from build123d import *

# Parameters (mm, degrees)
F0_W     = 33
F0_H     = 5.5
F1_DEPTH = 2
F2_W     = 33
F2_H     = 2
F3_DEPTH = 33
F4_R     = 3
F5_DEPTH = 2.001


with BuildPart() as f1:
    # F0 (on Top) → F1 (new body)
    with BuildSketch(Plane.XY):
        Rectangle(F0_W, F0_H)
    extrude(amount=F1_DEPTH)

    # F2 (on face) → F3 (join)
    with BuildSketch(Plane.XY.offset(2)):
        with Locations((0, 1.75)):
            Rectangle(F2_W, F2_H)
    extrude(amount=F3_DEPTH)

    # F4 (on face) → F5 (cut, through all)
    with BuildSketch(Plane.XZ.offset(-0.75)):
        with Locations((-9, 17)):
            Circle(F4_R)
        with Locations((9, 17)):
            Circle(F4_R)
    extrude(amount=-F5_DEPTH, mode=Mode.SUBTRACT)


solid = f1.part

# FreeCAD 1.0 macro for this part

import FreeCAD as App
import Part
import Sketcher

V = App.Vector


def add_polygon(sketch, points):
    """Adds a closed chain of lines whose ends are joined by coincident constraints."""
    first, n = sketch.GeometryCount, len(points)
    for a, b in zip(points, points[1:] + points[:1]):
        sketch.addGeometry(Part.LineSegment(App.Vector(*a, 0), App.Vector(*b, 0)), False)
    for i in range(n):
        sketch.addConstraint(Sketcher.Constraint("Coincident", first + i, 2, first + (i + 1) % n, 1))

doc = App.newDocument("Part")
body = doc.addObject("PartDesign::Body", "Body")

sketch1 = doc.addObject("Sketcher::SketchObject", "Sketch")
body.addObject(sketch1)
sketch1.AttachmentSupport = (doc.XY_Plane, [""])
sketch1.MapMode = "FlatFace"
add_polygon(sketch1, [(-16, 3), (-16, -3), (16, -3), (16, 3)])
sketch1.addConstraint([
    Sketcher.Constraint("Vertical", 0),
    Sketcher.Constraint("Horizontal", 1),
    Sketcher.Constraint("Vertical", 2),
    Sketcher.Constraint("Horizontal", 3),
    Sketcher.Constraint("Symmetric", 0, 2, 2, 2, -1, 1),
    Sketcher.Constraint("DistanceX", 1, 1, 1, 2, 33.0),
    Sketcher.Constraint("DistanceY", 0, 2, 0, 1, 5.5),
])
pad1 = doc.addObject("PartDesign::Pad", "Pad")
body.addObject(pad1)
pad1.Profile = sketch1
pad1.Length = 2

sketch2 = doc.addObject("Sketcher::SketchObject", "Sketch001")
body.addObject(sketch2)
sketch2.AttachmentSupport = (doc.XY_Plane, [""])
sketch2.MapMode = "FlatFace"
sketch2.AttachmentOffset = App.Placement(V(0, 0, 2), App.Rotation())
add_polygon(sketch2, [(-16.5, 2.8), (-16.5, 0.8), (16.5, 0.8), (16.5, 2.8)])
sketch2.addConstraint([
    Sketcher.Constraint("Vertical", 0),
    Sketcher.Constraint("Horizontal", 1),
    Sketcher.Constraint("Vertical", 2),
    Sketcher.Constraint("Horizontal", 3),
    Sketcher.Constraint("DistanceX", 1, 1, 1, 2, 33.0),
    Sketcher.Constraint("DistanceY", 0, 2, 0, 1, 2.0),
    Sketcher.Constraint("DistanceX", 0, 2, -1, 1, 16.5),
    Sketcher.Constraint("DistanceY", -1, 1, 0, 2, 0.75),
])
pad2 = doc.addObject("PartDesign::Pad", "Pad001")
body.addObject(pad2)
pad2.Profile = sketch2
pad2.Length = 33

sketch3 = doc.addObject("Sketcher::SketchObject", "Sketch002")
body.addObject(sketch3)
sketch3.AttachmentSupport = (doc.XZ_Plane, [""])
sketch3.MapMode = "FlatFace"
sketch3.AttachmentOffset = App.Placement(V(0, 0, -0.75), App.Rotation())
sketch3.addGeometry([
    Part.Circle(V(-9, 17, 0), V(0, 0, 1), 3),
    Part.Circle(V(9, 17, 0), V(0, 0, 1), 3),
], False)
sketch3.addConstraint([
    Sketcher.Constraint("Equal", 0, 1),
    Sketcher.Constraint("Symmetric", 0, 3, 1, 3, -2),
    Sketcher.Constraint("Diameter", 0, 6.0),
    Sketcher.Constraint("DistanceX", 0, 3, -1, 1, 9.0),
    Sketcher.Constraint("DistanceY", -1, 1, 0, 3, 17.0),
])
pocket1 = doc.addObject("PartDesign::Pocket", "Pocket")
body.addObject(pocket1)
pocket1.Profile = sketch3
pocket1.Type = "ThroughAll"

doc.recompute()
